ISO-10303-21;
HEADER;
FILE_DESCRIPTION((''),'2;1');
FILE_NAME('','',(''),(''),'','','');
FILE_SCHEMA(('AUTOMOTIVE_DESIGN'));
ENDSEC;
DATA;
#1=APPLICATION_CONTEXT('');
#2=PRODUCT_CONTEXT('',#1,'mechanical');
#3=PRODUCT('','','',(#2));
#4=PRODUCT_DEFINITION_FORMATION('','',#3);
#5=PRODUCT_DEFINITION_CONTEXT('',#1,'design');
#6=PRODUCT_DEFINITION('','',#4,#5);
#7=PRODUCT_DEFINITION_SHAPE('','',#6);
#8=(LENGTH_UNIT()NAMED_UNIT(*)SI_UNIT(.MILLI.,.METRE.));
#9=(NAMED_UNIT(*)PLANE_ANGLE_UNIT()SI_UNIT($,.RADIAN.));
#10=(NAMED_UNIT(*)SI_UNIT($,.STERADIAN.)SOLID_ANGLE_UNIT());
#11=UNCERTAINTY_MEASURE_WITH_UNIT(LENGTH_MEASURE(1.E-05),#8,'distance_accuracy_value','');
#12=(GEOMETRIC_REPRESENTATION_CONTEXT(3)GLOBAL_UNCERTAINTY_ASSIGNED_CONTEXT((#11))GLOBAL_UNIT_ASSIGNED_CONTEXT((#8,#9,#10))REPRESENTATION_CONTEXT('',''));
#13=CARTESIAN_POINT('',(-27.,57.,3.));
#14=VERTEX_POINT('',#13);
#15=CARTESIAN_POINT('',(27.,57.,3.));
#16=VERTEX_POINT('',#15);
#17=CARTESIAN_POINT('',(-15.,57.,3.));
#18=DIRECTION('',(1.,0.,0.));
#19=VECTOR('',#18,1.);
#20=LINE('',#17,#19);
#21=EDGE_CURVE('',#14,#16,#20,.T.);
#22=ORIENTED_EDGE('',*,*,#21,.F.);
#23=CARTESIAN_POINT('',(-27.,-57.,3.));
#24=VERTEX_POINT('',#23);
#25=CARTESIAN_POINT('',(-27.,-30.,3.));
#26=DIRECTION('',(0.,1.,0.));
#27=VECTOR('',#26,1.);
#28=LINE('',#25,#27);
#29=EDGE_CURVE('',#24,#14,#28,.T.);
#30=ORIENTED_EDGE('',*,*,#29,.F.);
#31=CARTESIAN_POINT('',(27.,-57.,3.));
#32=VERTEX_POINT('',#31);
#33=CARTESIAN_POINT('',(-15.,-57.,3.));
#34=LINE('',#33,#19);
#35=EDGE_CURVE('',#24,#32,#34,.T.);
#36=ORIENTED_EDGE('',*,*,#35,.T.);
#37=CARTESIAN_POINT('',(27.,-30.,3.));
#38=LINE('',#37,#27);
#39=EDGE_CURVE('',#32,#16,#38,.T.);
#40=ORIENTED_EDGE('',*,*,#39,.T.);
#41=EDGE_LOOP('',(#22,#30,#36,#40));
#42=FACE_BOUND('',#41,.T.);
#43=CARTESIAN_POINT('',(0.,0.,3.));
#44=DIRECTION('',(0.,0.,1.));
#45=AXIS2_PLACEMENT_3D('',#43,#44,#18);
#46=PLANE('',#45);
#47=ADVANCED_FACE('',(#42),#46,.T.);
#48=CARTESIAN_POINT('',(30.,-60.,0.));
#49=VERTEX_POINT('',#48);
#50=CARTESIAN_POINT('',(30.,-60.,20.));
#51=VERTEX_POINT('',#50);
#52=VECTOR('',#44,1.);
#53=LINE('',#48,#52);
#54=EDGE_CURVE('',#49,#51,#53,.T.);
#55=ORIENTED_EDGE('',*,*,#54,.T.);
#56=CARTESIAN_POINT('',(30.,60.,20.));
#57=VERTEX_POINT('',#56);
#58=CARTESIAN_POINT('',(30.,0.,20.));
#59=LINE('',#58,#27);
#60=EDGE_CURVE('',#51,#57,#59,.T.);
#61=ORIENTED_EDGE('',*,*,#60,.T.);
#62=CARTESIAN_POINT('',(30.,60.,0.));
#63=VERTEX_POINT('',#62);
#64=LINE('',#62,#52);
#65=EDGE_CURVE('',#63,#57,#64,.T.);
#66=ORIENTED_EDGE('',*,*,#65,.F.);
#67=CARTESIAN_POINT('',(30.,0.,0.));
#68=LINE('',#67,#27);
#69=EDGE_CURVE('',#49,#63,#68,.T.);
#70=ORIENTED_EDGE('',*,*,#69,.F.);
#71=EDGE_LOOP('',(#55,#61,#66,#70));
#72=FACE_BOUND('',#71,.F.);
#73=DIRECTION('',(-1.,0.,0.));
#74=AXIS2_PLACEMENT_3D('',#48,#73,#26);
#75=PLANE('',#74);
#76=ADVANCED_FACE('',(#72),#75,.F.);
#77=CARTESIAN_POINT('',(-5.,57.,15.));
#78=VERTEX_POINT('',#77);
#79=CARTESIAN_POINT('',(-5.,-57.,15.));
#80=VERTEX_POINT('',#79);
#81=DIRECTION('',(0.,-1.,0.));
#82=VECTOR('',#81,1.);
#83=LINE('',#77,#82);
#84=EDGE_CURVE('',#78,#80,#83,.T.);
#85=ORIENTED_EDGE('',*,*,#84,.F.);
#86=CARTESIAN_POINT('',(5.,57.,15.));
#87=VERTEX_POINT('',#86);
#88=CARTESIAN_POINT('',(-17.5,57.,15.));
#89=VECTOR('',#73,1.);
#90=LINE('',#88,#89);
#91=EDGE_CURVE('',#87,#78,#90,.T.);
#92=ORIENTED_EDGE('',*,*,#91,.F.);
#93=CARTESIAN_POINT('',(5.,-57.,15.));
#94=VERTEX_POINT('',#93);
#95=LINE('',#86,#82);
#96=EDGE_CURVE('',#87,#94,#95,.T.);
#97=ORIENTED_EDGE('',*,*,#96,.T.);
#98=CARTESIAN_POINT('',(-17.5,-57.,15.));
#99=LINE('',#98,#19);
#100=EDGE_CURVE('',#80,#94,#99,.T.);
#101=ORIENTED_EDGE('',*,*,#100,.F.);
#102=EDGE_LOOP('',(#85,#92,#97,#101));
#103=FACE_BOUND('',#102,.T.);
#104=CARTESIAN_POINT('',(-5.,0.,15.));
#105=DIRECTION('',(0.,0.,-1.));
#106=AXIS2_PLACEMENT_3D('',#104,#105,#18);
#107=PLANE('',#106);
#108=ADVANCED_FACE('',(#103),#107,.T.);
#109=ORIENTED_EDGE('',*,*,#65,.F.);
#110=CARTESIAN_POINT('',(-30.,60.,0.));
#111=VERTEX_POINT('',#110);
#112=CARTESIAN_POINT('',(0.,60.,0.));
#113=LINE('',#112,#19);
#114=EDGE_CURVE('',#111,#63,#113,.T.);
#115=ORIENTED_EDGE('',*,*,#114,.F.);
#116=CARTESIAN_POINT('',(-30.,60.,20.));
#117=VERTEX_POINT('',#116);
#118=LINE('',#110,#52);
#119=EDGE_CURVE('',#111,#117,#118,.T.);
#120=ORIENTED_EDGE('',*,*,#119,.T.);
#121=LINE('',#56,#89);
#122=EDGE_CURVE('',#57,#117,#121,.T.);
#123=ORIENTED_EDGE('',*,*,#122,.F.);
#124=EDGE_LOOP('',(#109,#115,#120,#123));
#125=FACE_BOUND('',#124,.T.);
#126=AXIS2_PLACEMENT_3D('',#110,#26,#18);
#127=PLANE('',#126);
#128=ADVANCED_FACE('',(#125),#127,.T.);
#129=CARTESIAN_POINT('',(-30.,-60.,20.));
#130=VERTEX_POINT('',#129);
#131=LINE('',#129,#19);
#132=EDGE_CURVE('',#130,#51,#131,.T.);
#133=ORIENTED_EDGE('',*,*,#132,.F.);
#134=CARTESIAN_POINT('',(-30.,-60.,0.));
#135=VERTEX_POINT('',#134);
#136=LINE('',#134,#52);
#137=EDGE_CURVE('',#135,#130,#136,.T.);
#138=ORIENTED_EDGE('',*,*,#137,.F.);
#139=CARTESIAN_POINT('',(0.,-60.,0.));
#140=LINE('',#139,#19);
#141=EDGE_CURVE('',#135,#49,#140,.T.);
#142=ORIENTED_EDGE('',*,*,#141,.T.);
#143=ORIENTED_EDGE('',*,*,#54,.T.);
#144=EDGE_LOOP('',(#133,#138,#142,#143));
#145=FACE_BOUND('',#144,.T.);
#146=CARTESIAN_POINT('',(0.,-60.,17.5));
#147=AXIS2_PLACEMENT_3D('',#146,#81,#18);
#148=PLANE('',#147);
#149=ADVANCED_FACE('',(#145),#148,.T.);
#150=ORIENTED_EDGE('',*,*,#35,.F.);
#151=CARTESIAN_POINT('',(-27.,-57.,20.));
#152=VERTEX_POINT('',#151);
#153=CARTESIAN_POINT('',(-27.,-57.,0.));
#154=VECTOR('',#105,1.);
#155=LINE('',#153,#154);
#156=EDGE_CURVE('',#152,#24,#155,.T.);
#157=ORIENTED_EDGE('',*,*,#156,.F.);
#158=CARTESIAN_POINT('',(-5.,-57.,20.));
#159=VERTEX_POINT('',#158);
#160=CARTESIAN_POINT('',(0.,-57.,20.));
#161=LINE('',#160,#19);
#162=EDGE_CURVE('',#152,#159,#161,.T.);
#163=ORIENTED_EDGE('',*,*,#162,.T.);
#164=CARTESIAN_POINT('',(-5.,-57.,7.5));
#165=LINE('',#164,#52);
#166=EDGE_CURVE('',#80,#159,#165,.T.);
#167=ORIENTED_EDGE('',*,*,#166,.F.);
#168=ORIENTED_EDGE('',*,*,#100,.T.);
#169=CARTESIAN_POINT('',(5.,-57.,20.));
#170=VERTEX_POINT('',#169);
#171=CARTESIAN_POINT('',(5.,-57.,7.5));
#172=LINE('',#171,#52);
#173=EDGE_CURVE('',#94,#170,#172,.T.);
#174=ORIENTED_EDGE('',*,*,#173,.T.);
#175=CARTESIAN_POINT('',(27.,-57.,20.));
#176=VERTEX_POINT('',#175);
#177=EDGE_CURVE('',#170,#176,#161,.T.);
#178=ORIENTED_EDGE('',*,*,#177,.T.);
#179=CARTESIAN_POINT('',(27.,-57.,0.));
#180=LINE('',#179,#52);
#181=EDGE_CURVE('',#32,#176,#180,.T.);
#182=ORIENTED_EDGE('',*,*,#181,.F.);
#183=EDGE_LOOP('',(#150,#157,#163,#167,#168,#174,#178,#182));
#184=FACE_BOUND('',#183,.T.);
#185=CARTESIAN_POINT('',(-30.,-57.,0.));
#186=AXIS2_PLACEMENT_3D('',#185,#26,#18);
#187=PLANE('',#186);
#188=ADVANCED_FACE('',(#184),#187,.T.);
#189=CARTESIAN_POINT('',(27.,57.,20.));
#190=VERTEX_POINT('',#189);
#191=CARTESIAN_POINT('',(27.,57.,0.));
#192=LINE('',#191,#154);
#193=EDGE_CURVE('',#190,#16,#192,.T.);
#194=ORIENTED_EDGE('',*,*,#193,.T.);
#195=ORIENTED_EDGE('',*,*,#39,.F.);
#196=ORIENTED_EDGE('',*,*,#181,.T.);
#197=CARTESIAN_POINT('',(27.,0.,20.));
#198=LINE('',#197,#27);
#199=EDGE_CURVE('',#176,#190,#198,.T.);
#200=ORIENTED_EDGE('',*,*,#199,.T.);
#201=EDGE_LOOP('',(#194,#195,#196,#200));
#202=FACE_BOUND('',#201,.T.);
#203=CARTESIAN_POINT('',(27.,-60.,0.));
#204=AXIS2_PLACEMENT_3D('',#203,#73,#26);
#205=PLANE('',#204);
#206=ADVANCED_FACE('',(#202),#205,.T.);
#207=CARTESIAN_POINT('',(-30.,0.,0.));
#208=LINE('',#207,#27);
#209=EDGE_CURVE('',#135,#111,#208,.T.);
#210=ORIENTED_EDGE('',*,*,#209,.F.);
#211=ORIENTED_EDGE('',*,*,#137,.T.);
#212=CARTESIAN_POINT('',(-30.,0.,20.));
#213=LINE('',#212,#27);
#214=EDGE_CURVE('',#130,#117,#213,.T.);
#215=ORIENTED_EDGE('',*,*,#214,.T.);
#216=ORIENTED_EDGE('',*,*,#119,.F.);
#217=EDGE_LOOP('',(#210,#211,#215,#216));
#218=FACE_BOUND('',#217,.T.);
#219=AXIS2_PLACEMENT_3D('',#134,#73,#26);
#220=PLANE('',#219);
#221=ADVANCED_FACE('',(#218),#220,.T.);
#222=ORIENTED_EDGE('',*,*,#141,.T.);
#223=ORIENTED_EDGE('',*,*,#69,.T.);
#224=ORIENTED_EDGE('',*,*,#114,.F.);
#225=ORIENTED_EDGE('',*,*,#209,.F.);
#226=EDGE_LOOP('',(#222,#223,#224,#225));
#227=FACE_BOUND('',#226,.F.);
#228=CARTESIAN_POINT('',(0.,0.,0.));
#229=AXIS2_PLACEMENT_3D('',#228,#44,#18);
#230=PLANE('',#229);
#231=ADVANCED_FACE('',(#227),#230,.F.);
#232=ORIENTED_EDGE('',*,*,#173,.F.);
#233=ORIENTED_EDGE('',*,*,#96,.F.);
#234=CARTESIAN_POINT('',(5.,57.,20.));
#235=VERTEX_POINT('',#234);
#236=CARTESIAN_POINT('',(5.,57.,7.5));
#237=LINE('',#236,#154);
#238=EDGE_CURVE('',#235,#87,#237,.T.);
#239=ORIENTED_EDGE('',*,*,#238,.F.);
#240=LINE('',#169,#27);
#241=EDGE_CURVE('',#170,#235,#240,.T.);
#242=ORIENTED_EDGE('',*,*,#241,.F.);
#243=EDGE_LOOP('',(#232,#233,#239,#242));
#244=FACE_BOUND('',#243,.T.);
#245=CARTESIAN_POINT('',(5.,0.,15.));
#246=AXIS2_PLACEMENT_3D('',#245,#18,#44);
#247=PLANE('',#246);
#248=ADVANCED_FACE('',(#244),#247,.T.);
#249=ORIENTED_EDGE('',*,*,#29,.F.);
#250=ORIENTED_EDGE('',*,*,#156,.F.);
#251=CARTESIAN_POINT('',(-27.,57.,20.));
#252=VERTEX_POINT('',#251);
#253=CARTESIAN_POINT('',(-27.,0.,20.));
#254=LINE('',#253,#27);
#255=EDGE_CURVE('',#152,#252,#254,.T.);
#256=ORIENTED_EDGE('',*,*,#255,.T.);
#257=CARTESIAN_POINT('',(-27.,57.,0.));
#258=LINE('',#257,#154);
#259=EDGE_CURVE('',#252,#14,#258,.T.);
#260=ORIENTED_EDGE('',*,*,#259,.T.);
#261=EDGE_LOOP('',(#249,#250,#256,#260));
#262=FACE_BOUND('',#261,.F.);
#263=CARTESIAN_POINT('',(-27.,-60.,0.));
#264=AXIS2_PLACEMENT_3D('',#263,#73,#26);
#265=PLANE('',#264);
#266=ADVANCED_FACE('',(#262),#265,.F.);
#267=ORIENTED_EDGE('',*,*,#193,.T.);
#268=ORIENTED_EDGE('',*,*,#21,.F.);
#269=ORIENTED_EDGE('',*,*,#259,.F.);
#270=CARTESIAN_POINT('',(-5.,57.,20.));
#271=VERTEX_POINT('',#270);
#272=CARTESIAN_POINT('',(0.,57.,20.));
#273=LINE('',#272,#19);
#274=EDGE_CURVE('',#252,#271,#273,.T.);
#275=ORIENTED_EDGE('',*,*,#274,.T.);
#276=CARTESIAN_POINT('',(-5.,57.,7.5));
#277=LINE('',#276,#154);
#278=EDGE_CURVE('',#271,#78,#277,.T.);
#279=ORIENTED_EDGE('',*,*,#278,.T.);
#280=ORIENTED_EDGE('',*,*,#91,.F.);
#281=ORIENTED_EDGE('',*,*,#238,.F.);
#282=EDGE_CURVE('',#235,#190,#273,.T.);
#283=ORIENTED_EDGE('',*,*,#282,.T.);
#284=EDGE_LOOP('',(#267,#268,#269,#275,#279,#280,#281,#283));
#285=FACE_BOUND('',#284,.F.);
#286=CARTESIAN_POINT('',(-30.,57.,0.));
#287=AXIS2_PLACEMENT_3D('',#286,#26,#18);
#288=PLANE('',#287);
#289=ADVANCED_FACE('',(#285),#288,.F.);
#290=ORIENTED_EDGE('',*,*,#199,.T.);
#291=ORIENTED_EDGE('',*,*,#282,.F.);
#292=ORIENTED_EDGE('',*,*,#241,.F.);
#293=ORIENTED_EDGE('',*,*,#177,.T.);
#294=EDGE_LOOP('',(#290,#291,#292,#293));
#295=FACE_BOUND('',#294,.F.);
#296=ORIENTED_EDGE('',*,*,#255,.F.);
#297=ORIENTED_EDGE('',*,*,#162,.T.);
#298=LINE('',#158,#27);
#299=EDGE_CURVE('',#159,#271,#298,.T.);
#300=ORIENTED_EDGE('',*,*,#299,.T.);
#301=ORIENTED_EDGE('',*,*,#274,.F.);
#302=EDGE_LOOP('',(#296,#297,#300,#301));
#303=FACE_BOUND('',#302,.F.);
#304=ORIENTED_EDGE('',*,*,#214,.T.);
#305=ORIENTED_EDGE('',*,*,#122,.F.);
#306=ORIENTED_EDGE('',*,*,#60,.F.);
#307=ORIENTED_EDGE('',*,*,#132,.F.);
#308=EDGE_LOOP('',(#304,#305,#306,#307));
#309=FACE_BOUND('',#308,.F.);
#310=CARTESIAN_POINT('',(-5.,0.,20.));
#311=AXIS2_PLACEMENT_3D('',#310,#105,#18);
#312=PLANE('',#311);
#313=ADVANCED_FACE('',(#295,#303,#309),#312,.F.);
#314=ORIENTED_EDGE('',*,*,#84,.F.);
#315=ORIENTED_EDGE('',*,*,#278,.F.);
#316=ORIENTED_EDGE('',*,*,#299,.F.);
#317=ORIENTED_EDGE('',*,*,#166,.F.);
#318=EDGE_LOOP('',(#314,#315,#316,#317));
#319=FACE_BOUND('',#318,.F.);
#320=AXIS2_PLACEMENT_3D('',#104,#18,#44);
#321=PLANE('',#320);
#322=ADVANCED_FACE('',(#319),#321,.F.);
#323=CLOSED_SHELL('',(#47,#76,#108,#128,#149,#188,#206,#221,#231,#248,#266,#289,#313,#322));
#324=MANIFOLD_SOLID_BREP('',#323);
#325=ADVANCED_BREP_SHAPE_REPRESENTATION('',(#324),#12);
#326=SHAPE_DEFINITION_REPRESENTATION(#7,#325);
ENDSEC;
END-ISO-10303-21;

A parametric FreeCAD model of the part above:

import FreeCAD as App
import Part
import Sketcher

V = App.Vector
Q = App.Units.Quantity


def faces_at(feature, points):
    """Names of the faces that lie closest to the given points."""
    faces = feature.Shape.Faces
    near = lambda p: min(range(len(faces)), key=lambda i: faces[i].distToShape(Part.Vertex(*p))[0])
    return sorted({f"Face{near(p) + 1}" for p in points})


def add_polygon(sketch, points):
    """Adds a closed chain of lines whose ends are joined by coincident constraints."""
    first, n = sketch.GeometryCount, len(points)
    for a, b in zip(points, points[1:] + points[:1]):
        sketch.addGeometry(Part.LineSegment(App.Vector(*a, 0), App.Vector(*b, 0)), False)
    for i in range(n):
        sketch.addConstraint(Sketcher.Constraint("Coincident", first + i, 2, first + (i + 1) % n, 1))

doc = App.newDocument("Part")
body = doc.addObject("PartDesign::Body", "Body")

sketch1 = body.newObject("Sketcher::SketchObject", "Sketch")
sketch1.AttachmentSupport = (doc.getObject("XY_Plane"), [""])
sketch1.MapMode = "FlatFace"
add_polygon(sketch1, [(-30, 60), (-30, -60), (30, -60), (30, 60)])
sketch1.addConstraint(Sketcher.Constraint("Vertical", 0))
sketch1.addConstraint(Sketcher.Constraint("Horizontal", 1))
sketch1.addConstraint(Sketcher.Constraint("Vertical", 2))
sketch1.addConstraint(Sketcher.Constraint("Horizontal", 3))
sketch1.addConstraint(Sketcher.Constraint("Symmetric", 0, 2, 2, 2, -1, 1))
sketch1.addConstraint(Sketcher.Constraint("DistanceX", 1, 1, 1, 2, Q("60 mm")))
sketch1.addConstraint(Sketcher.Constraint("DistanceY", 0, 2, 0, 1, Q("120 mm")))
pad1 = body.newObject("PartDesign::Pad", "Pad")
pad1.Profile = sketch1
pad1.Length = 20
doc.recompute()

thickness = body.newObject("PartDesign::Thickness", "Thickness")
thickness.Base = (pad1, faces_at(pad1, [(0, 0, 20)]))
thickness.Value = 3
thickness.Reversed = True
thickness.Join = "Arc"

sketch2 = body.newObject("Sketcher::SketchObject", "Sketch001")
sketch2.AttachmentSupport = (doc.getObject("XZ_Plane"), [""])
sketch2.MapMode = "FlatFace"
add_polygon(sketch2, [(-5, 20), (-5, 15), (5, 15), (5, 20)])
sketch2.addConstraint(Sketcher.Constraint("Vertical", 0))
sketch2.addConstraint(Sketcher.Constraint("Horizontal", 1))
sketch2.addConstraint(Sketcher.Constraint("Vertical", 2))
sketch2.addConstraint(Sketcher.Constraint("Horizontal", 3))
sketch2.addConstraint(Sketcher.Constraint("DistanceX", 1, 1, 1, 2, Q("10 mm")))
sketch2.addConstraint(Sketcher.Constraint("DistanceY", 0, 2, 0, 1, Q("5 mm")))
sketch2.addConstraint(Sketcher.Constraint("DistanceX", 0, 2, -1, 1, Q("5 mm")))
sketch2.addConstraint(Sketcher.Constraint("DistanceY", -1, 1, 0, 2, Q("15 mm")))
pad2 = body.newObject("PartDesign::Pad", "Pad001")
pad2.Profile = sketch2
pad2.Length = 60

sketch3 = body.newObject("Sketcher::SketchObject", "Sketch002")
sketch3.AttachmentSupport = (doc.getObject("XZ_Plane"), [""])
sketch3.MapMode = "FlatFace"
add_polygon(sketch3, [(-5, 20), (-5, 15), (5, 15), (5, 20)])
sketch3.addConstraint(Sketcher.Constraint("Vertical", 0))
sketch3.addConstraint(Sketcher.Constraint("Horizontal", 1))
sketch3.addConstraint(Sketcher.Constraint("Vertical", 2))
sketch3.addConstraint(Sketcher.Constraint("Horizontal", 3))
sketch3.addConstraint(Sketcher.Constraint("DistanceX", 1, 1, 1, 2, Q("10 mm")))
sketch3.addConstraint(Sketcher.Constraint("DistanceY", 0, 2, 0, 1, Q("5 mm")))
sketch3.addConstraint(Sketcher.Constraint("DistanceX", 0, 2, -1, 1, Q("5 mm")))
sketch3.addConstraint(Sketcher.Constraint("DistanceY", -1, 1, 0, 2, Q("15 mm")))
pad3 = body.newObject("PartDesign::Pad", "Pad002")
pad3.Profile = sketch3
pad3.Length = 60
pad3.Reversed = True

doc.recompute()
